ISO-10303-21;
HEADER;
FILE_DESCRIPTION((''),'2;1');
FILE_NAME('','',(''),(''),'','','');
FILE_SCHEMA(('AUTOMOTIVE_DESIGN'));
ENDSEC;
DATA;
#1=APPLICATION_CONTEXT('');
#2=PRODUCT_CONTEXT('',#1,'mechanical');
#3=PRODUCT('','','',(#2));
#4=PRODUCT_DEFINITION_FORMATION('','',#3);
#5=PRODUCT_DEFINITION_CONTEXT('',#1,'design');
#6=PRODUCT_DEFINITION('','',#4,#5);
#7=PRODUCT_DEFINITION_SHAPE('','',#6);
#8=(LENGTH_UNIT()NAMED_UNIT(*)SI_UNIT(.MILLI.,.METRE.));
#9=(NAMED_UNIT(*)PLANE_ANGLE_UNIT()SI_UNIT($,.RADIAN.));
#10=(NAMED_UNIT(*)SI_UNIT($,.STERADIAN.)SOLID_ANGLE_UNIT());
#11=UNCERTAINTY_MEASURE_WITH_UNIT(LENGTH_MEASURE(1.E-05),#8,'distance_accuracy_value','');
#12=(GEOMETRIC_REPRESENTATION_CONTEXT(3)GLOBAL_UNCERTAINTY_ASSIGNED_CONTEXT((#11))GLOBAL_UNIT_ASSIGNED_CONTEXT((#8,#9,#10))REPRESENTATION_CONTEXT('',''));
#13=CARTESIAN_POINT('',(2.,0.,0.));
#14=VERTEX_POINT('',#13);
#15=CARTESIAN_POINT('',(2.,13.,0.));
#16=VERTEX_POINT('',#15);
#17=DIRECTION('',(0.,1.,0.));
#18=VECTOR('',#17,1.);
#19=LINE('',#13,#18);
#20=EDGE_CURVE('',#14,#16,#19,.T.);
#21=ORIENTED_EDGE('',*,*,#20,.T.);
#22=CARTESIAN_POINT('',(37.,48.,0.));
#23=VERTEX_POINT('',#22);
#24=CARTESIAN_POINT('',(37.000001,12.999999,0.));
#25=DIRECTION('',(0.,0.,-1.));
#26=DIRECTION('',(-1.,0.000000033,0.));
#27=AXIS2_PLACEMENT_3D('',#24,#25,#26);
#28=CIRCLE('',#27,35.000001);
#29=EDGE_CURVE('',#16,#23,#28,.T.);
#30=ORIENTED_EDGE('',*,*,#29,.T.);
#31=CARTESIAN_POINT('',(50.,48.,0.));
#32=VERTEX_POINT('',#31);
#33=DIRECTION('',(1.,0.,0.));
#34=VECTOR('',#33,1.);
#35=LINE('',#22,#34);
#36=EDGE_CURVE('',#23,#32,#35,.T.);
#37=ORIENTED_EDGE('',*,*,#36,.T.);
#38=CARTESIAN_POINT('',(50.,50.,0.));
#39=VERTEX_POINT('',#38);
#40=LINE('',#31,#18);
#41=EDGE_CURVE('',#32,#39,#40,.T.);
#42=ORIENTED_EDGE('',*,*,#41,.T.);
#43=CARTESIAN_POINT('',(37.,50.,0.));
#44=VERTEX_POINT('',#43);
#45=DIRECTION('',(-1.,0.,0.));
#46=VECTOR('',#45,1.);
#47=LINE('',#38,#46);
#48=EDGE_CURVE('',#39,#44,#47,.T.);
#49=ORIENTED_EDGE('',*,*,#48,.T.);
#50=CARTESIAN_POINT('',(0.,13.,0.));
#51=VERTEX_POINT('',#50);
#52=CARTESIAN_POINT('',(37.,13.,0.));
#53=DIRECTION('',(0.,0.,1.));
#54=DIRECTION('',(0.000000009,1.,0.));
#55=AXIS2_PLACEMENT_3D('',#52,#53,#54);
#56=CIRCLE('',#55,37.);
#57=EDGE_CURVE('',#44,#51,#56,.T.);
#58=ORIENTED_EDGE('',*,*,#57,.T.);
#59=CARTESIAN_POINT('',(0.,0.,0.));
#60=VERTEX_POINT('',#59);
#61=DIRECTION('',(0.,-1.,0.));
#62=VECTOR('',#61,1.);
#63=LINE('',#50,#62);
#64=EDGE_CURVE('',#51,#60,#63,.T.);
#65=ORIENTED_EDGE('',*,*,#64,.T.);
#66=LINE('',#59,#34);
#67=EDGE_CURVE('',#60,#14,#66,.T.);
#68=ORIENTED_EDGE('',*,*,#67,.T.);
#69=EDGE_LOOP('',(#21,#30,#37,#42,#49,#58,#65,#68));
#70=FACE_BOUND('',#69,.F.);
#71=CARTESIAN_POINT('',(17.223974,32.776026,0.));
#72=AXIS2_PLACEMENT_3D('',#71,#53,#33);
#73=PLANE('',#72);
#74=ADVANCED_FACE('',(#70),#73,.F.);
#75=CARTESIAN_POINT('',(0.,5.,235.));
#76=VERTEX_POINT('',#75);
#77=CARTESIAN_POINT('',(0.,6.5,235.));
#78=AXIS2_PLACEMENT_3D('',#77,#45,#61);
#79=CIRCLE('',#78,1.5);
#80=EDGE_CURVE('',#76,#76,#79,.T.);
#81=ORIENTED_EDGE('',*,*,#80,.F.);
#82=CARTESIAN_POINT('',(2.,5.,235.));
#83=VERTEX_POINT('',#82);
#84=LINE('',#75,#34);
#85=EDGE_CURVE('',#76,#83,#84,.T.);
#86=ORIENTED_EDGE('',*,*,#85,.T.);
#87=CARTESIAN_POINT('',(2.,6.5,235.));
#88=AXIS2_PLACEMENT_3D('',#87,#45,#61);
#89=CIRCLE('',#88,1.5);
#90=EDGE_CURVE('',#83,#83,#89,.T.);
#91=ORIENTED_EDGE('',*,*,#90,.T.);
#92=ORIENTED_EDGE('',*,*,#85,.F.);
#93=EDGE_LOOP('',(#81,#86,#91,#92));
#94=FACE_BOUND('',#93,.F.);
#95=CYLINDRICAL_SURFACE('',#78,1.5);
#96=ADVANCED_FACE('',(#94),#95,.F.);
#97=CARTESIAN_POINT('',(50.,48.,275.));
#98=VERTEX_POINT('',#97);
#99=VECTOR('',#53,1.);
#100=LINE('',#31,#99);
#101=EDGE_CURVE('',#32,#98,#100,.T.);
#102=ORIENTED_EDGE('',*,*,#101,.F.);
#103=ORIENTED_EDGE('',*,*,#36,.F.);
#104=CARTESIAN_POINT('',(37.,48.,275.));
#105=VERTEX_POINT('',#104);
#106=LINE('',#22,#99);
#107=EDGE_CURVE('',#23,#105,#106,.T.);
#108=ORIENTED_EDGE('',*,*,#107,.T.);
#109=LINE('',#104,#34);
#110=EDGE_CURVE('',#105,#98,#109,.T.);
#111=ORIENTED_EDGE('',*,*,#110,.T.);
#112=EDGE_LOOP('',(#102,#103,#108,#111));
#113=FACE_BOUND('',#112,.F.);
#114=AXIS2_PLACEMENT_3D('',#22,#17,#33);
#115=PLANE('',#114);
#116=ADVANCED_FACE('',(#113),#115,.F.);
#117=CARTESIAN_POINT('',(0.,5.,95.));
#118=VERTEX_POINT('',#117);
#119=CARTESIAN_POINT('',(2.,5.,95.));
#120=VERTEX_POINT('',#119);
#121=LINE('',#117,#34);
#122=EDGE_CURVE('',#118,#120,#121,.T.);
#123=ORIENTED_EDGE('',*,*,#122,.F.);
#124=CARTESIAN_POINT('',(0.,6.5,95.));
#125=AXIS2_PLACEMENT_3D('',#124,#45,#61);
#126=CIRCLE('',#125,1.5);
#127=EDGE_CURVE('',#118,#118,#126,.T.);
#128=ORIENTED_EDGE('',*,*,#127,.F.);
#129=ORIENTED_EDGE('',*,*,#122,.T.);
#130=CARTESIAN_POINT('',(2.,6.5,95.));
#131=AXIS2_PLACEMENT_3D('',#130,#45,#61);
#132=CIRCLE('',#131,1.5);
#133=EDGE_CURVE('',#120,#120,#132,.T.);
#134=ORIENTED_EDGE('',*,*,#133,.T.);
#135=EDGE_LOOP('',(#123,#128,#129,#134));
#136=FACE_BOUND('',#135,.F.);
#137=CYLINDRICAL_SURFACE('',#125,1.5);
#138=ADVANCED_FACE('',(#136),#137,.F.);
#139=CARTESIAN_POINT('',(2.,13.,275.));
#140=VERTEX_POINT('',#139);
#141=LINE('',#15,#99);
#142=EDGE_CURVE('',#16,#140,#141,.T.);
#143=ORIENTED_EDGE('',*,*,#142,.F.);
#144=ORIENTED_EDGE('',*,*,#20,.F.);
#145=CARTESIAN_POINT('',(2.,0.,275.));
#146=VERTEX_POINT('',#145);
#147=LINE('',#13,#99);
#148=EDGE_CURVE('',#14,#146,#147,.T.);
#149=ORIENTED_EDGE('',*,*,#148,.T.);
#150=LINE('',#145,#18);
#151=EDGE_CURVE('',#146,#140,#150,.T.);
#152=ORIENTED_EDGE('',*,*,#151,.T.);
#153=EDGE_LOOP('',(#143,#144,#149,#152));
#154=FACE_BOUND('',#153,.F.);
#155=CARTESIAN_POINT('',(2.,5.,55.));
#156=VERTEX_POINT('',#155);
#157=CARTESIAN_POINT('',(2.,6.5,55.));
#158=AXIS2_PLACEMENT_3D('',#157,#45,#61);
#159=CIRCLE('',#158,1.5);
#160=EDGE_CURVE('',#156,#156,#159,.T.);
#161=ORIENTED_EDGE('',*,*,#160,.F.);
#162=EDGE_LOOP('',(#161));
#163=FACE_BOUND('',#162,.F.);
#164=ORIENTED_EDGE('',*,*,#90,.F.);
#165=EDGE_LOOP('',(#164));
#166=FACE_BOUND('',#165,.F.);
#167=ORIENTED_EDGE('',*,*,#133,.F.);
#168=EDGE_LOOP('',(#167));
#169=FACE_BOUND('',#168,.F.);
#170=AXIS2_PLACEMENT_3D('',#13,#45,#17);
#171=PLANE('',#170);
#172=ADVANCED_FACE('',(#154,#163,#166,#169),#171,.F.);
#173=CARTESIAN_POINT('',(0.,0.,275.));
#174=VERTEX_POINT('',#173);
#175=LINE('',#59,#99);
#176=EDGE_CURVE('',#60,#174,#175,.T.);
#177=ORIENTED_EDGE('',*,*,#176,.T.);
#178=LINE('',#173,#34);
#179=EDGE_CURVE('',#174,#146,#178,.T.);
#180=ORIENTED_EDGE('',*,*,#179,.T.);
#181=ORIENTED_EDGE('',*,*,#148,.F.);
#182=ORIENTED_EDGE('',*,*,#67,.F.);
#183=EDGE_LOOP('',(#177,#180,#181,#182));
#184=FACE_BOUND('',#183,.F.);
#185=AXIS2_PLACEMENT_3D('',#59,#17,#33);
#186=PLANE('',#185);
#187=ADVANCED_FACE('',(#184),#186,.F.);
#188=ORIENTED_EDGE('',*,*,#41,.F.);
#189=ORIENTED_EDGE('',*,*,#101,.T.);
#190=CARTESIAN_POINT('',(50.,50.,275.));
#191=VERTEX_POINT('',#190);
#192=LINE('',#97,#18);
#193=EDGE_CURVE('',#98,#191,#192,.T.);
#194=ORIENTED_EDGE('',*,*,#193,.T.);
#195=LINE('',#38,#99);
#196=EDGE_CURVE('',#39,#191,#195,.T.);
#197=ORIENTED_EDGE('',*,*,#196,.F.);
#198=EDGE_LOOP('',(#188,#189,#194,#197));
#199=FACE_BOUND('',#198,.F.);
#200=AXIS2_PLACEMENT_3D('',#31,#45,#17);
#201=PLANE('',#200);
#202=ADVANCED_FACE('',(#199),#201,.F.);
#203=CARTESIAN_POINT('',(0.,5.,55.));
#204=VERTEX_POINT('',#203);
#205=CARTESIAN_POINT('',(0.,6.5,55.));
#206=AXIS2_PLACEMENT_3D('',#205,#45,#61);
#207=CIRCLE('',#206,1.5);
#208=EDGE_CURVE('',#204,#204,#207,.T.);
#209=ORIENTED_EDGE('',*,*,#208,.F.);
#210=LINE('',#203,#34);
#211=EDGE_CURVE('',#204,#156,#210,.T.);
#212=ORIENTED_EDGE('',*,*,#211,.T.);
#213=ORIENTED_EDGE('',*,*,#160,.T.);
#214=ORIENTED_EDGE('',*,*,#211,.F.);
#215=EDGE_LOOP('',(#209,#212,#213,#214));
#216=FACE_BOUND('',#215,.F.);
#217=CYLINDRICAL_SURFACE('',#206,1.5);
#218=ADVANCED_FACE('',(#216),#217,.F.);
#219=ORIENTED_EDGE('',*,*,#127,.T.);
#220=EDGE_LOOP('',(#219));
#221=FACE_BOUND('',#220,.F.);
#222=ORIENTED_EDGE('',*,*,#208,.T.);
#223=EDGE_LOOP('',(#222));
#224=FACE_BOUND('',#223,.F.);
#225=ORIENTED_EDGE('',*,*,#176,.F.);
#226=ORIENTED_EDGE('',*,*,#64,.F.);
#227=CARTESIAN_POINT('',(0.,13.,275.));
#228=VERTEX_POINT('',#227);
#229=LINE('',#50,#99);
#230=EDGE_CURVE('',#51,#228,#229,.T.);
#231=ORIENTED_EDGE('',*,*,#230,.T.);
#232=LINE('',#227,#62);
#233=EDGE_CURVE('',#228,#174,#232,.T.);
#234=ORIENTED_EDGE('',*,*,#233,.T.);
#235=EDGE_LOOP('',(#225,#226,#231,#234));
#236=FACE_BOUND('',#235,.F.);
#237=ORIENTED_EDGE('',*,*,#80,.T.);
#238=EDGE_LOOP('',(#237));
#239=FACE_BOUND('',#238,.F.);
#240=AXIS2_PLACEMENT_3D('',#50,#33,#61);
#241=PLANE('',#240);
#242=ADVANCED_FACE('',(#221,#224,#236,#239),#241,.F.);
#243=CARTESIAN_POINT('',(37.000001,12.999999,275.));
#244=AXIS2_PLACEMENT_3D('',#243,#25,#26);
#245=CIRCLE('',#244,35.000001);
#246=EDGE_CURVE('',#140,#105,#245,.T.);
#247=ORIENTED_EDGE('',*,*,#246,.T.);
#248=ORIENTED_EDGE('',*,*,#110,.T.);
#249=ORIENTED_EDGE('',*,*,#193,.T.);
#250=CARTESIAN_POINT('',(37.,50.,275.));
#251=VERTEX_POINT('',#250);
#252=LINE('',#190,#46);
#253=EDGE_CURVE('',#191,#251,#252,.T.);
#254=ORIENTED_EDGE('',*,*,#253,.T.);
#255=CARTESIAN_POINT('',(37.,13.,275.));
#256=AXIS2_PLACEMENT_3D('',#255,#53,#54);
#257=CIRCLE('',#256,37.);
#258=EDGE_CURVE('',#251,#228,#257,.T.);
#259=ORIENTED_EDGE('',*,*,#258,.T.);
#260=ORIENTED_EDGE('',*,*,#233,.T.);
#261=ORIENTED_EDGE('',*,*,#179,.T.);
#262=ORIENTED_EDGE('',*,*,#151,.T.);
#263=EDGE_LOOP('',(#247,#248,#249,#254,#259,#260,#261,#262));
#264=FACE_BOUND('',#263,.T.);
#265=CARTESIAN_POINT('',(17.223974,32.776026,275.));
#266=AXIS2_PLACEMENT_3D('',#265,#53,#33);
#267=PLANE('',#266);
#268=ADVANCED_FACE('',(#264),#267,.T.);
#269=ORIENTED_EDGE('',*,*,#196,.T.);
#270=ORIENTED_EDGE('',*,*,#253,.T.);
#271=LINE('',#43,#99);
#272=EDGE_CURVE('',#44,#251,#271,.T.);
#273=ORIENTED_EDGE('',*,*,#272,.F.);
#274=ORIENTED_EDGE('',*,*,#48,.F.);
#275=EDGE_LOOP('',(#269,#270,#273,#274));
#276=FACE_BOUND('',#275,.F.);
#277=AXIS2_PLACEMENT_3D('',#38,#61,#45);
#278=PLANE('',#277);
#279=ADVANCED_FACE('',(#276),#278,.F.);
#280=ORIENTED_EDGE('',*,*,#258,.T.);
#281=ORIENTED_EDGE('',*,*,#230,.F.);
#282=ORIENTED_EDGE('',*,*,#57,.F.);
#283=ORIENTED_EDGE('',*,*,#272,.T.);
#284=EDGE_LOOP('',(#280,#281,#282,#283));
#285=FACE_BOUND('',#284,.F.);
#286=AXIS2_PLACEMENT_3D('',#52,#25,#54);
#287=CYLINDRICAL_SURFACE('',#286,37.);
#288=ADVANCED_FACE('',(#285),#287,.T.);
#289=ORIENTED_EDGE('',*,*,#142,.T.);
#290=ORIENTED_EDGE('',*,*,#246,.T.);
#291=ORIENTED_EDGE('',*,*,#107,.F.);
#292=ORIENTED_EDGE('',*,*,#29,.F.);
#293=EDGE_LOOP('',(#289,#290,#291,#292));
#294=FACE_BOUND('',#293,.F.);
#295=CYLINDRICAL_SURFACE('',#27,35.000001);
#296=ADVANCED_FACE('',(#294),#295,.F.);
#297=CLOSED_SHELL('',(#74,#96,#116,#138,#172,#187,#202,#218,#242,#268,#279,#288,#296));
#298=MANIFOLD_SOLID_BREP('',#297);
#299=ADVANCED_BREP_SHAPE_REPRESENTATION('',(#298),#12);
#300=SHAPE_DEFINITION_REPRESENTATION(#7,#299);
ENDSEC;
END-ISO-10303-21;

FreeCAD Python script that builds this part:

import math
import FreeCAD as App
import Part
import Sketcher

V = App.Vector

doc = App.newDocument("Part")
body = doc.addObject("PartDesign::Body", "Body")

# Sketch on XY plane
sketch1 = body.newObject("Sketcher::SketchObject", "Sketch")
sketch1.AttachmentSupport = (doc.getObject("XY_Plane"), [""])
sketch1.MapMode = "FlatFace"
sketch1.addGeometry([
    Part.LineSegment(V(0, 13, 0), V(0, 0, 0)),  # 0
    Part.LineSegment(V(0, 0, 0), V(2, 0, 0)),  # 1
    Part.LineSegment(V(2, 0, 0), V(2, 13, 0)),  # 2
    Part.ArcOfCircle(Part.Circle(V(37, 13, 0), V(0, 0, 1), 35), math.radians(90), math.radians(180)),  # 3
    Part.LineSegment(V(37, 48, 0), V(50, 48, 0)),  # 4
    Part.LineSegment(V(50, 48, 0), V(50, 50, 0)),  # 5
    Part.LineSegment(V(50, 50, 0), V(37, 50, 0)),  # 6
    Part.ArcOfCircle(Part.Circle(V(37, 13, 0), V(0, 0, 1), 37), math.radians(90), math.radians(180)),  # 7
], False)
sketch1.addConstraint([
    Sketcher.Constraint("Coincident", 0, 2, 1, 1),
    Sketcher.Constraint("Coincident", 1, 2, 2, 1),
    Sketcher.Constraint("Tangent", 2, 2, 3, 2),
    Sketcher.Constraint("Tangent", 3, 1, 4, 1),
    Sketcher.Constraint("Coincident", 4, 2, 5, 1),
    Sketcher.Constraint("Coincident", 5, 2, 6, 1),
    Sketcher.Constraint("Tangent", 6, 2, 7, 1),
    Sketcher.Constraint("Tangent", 7, 2, 0, 1),
    Sketcher.Constraint("Vertical", 0),
    Sketcher.Constraint("Horizontal", 1),
    Sketcher.Constraint("Vertical", 2),
    Sketcher.Constraint("Horizontal", 4),
    Sketcher.Constraint("Vertical", 5),
    Sketcher.Constraint("Horizontal", 6),
    Sketcher.Constraint("Coincident", 0, 2, -1, 1),
    Sketcher.Constraint("Coincident", 7, 3, 3, 3),
    Sketcher.Constraint("Equal", 6, 0),
    Sketcher.Constraint("Radius", 3, 35.000001),
    Sketcher.Constraint("Radius", 7, 37.0),
    Sketcher.Constraint("DistanceX", 4, 1, 4, 2, 13.0),
])
pad1 = body.newObject("PartDesign::Pad", "Pad")
pad1.Profile = sketch1
pad1.Length = 275

# Sketch on YZ plane
sketch2 = body.newObject("Sketcher::SketchObject", "Sketch001")
sketch2.AttachmentSupport = (doc.getObject("YZ_Plane"), [""])
sketch2.MapMode = "FlatFace"
sketch2.addGeometry([
    Part.Circle(V(6.5, 235, 0), V(0, 0, 1), 1.5),
    Part.Circle(V(6.5, 95, 0), V(0, 0, 1), 1.5),
    Part.Circle(V(6.5, 55, 0), V(0, 0, 1), 1.5),
], False)
sketch2.addConstraint([
    Sketcher.Constraint("Equal", 0, 1),
    Sketcher.Constraint("Equal", 1, 2),
    Sketcher.Constraint("Vertical", 0, 3, 1, 3),
    Sketcher.Constraint("Vertical", 1, 3, 2, 3),
    Sketcher.Constraint("Diameter", 0, 3.0),
    Sketcher.Constraint("DistanceY", -1, 1, 0, 3, 235.0),
    Sketcher.Constraint("DistanceY", -1, 1, 1, 3, 95.0),
    Sketcher.Constraint("DistanceY", -1, 1, 2, 3, 55.0),
    Sketcher.Constraint("DistanceX", -1, 1, 0, 3, 6.5),
])
pocket1 = body.newObject("PartDesign::Pocket", "Pocket")
pocket1.Profile = sketch2
pocket1.Type = "ThroughAll"
pocket1.Reversed = True

doc.recompute()
